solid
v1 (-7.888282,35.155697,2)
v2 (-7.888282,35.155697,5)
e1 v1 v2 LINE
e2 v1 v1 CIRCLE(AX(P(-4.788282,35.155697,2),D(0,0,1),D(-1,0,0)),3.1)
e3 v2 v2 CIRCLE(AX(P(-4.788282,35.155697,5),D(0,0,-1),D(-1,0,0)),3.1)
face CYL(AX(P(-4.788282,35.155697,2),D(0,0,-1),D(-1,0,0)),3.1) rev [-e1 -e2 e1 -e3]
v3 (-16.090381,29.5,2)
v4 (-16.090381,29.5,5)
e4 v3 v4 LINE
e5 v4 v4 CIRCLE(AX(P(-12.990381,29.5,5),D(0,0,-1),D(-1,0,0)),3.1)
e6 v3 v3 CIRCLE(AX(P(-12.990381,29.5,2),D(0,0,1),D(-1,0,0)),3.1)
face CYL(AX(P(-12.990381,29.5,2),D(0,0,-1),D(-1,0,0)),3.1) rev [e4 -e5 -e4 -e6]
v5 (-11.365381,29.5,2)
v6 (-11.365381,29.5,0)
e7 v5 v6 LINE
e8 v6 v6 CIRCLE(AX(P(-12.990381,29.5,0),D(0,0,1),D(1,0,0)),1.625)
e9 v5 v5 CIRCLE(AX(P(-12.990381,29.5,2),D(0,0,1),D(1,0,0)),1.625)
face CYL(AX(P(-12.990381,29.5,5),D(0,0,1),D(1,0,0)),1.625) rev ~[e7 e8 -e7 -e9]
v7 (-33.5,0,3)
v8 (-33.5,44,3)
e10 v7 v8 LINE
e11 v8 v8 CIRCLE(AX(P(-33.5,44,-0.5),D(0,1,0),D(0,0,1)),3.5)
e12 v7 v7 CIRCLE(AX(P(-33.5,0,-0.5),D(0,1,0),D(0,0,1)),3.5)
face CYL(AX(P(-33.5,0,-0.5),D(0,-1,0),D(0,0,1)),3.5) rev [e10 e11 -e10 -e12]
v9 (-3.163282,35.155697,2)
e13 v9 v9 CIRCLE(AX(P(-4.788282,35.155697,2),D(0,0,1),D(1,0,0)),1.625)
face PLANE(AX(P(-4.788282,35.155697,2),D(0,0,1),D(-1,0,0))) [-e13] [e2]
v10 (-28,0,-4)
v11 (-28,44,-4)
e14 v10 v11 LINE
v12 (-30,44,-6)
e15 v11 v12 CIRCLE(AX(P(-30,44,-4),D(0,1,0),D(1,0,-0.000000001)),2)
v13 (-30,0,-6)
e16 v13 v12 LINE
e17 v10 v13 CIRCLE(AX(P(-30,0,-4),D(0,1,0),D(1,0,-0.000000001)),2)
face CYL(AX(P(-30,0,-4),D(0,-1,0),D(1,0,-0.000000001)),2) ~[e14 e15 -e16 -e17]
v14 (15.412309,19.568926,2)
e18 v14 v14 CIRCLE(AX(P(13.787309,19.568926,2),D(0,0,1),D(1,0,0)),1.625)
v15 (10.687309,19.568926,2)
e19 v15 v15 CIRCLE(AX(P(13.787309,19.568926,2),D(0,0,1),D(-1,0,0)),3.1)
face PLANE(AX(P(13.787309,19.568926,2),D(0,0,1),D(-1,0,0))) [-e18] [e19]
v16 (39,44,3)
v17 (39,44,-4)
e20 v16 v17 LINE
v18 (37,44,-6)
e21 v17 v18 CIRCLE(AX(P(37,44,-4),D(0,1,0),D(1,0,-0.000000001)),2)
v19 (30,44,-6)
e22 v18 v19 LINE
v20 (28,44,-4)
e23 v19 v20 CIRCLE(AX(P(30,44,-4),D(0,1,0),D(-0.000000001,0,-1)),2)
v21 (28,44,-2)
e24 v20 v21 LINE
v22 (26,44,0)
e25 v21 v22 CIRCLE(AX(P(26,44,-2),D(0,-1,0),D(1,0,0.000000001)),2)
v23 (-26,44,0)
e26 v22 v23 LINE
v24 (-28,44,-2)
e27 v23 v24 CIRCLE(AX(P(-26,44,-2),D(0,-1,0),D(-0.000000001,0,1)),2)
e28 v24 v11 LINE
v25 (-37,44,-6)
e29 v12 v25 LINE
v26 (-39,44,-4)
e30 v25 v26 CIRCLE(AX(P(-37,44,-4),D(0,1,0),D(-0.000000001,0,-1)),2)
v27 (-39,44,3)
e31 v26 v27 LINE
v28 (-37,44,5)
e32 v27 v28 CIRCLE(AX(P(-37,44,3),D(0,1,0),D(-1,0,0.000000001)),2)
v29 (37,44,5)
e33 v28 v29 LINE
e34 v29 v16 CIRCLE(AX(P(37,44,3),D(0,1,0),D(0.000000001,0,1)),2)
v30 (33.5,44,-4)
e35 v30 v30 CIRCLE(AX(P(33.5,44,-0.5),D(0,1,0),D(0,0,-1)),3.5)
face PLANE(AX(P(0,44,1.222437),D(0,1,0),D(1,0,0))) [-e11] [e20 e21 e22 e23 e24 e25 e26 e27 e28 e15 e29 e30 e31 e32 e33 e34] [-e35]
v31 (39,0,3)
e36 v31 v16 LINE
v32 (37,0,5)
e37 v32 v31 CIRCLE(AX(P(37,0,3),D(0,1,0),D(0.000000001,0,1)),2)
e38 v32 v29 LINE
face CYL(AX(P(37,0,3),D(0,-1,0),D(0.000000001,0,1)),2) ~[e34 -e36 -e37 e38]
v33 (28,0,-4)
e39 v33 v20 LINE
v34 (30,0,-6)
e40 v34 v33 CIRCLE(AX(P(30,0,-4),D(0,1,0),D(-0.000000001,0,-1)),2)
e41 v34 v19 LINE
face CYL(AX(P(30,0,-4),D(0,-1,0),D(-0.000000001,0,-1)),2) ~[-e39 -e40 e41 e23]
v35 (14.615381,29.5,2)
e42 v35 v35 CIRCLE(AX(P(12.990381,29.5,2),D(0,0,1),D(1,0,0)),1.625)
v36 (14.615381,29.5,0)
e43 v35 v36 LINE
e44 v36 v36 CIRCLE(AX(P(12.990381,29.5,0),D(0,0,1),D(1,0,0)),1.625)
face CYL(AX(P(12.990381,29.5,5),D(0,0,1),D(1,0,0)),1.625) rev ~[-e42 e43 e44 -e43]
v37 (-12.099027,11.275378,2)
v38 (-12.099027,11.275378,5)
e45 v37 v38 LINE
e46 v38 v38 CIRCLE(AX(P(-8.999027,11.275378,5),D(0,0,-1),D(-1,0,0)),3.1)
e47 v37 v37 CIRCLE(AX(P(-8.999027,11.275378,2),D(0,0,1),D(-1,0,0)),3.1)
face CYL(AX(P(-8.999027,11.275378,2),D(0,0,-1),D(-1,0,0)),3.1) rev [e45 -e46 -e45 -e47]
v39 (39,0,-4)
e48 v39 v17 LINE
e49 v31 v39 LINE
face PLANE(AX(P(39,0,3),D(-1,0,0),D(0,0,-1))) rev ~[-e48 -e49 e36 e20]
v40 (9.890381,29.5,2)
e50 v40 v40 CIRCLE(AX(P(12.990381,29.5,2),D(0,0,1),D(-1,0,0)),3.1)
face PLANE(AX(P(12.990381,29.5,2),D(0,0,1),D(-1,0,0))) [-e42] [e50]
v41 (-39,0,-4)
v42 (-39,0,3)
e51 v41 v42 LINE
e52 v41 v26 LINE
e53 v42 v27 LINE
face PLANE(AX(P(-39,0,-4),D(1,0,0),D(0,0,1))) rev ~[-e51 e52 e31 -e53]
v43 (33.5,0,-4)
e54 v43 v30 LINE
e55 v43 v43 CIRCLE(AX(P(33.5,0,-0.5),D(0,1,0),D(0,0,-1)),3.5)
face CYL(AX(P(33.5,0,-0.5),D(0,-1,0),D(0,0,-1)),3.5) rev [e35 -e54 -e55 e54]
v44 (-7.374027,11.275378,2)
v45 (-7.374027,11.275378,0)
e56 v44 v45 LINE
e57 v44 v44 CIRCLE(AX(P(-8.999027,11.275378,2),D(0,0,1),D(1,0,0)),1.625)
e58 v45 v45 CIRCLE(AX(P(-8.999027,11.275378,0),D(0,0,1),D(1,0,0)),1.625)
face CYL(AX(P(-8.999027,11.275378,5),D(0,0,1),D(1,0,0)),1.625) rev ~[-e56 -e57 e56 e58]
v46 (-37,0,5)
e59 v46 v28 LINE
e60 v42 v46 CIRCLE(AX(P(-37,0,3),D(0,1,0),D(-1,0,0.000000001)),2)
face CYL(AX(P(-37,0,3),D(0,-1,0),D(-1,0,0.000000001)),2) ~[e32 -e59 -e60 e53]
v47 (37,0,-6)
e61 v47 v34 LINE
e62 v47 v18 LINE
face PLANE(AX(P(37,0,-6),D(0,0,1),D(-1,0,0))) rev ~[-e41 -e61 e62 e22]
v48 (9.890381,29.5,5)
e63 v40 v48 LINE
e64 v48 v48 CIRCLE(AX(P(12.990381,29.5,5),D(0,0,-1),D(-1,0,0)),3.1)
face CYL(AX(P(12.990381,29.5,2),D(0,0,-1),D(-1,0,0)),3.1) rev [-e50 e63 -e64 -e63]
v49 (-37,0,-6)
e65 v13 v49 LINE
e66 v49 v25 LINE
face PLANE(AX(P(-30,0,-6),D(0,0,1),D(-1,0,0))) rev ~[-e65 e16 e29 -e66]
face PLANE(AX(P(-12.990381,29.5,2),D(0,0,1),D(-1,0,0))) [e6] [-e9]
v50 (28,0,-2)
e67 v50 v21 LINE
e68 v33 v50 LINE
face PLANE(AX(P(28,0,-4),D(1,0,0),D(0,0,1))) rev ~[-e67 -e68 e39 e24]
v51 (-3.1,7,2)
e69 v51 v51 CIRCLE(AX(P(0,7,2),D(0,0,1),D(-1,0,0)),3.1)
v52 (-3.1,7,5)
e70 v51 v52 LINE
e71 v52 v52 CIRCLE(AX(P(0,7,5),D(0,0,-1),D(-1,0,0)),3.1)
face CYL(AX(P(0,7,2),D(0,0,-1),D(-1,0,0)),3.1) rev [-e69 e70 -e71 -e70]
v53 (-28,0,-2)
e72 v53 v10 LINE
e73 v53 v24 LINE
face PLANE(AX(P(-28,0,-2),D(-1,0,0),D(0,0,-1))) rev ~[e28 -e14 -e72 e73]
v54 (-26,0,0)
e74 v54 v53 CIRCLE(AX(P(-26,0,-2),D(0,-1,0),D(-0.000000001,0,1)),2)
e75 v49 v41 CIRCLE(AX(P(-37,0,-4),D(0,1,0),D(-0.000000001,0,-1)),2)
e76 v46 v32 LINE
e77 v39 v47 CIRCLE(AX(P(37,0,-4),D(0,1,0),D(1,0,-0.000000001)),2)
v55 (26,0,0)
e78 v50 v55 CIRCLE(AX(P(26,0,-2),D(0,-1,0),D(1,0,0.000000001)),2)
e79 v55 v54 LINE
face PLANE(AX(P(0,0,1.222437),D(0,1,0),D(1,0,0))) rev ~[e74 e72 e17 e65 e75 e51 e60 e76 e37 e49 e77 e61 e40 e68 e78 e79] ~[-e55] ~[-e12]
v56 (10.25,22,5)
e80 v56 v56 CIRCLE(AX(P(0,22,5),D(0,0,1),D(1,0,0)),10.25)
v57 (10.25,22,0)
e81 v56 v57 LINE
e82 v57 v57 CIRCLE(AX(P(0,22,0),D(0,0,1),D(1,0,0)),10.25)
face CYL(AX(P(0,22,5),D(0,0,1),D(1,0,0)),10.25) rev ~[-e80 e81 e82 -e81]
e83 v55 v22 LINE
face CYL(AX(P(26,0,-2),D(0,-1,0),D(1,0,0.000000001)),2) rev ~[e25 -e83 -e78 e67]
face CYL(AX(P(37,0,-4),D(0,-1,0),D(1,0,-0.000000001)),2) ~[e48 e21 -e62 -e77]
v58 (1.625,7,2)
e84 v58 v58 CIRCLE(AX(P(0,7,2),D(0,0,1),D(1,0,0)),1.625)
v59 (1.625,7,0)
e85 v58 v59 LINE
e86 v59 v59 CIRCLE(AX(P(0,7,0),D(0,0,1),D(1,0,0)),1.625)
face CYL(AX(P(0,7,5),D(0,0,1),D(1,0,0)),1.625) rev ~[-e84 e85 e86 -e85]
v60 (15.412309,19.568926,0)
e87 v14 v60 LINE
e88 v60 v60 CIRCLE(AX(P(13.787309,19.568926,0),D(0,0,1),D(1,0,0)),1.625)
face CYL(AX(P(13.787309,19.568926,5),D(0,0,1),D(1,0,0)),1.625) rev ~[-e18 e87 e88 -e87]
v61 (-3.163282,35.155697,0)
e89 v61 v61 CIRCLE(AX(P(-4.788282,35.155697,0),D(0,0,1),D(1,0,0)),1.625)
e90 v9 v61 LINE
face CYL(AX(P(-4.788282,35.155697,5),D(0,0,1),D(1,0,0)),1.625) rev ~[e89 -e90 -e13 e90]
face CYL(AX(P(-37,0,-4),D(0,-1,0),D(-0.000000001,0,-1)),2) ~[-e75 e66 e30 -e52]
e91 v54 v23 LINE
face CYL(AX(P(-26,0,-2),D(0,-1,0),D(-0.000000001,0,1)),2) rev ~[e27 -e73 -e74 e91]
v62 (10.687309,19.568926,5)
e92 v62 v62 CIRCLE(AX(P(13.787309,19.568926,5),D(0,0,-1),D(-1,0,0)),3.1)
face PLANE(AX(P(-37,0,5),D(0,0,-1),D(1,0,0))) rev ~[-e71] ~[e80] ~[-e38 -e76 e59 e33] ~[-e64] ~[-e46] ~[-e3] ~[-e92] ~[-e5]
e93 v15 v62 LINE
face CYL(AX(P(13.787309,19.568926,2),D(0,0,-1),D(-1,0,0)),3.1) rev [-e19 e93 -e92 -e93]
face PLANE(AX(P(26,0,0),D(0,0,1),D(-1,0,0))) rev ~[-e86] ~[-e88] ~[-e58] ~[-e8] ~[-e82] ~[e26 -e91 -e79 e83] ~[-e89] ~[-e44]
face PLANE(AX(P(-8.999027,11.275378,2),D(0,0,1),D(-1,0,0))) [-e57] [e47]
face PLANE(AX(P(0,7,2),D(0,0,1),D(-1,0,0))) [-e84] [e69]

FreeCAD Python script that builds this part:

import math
import FreeCAD as App
import Part
import Sketcher

doc = App.newDocument("Part")
body = doc.addObject("PartDesign::Body", "Body")

# Sketch on XZ plane
sketch1 = body.newObject("Sketcher::SketchObject", "Sketch")
sketch1.AttachmentSupport = (doc.getObject("XZ_Plane"), [""])
sketch1.MapMode = "FlatFace"
sketch1.addGeometry(Part.LineSegment(App.Vector(26, 0, 0), App.Vector(-26, 0, 0)), False)
sketch1.addGeometry(Part.ArcOfCircle(Part.Circle(App.Vector(-26, -2, 0), App.Vector(0, 0, 1), 2), math.radians(90), math.radians(180)), False)
sketch1.addGeometry(Part.LineSegment(App.Vector(-28, -2, 0), App.Vector(-28, -4, 0)), False)
sketch1.addGeometry(Part.ArcOfCircle(Part.Circle(App.Vector(-30, -4, 0), App.Vector(0, 0, 1), 2), math.radians(-90), math.radians(0)), False)
sketch1.addGeometry(Part.LineSegment(App.Vector(-30, -6, 0), App.Vector(-37, -6, 0)), False)
sketch1.addGeometry(Part.ArcOfCircle(Part.Circle(App.Vector(-37, -4, 0), App.Vector(0, 0, 1), 2), math.radians(-180), math.radians(-90)), False)
sketch1.addGeometry(Part.LineSegment(App.Vector(-39, -4, 0), App.Vector(-39, 3, 0)), False)
sketch1.addGeometry(Part.ArcOfCircle(Part.Circle(App.Vector(-37, 3, 0), App.Vector(0, 0, 1), 2), math.radians(90), math.radians(180)), False)
sketch1.addGeometry(Part.LineSegment(App.Vector(-37, 5, 0), App.Vector(37, 5, 0)), False)
sketch1.addGeometry(Part.ArcOfCircle(Part.Circle(App.Vector(37, 3, 0), App.Vector(0, 0, 1), 2), math.radians(0), math.radians(90)), False)
sketch1.addGeometry(Part.LineSegment(App.Vector(39, 3, 0), App.Vector(39, -4, 0)), False)
sketch1.addGeometry(Part.ArcOfCircle(Part.Circle(App.Vector(37, -4, 0), App.Vector(0, 0, 1), 2), math.radians(-90), math.radians(0)), False)
sketch1.addGeometry(Part.LineSegment(App.Vector(37, -6, 0), App.Vector(30, -6, 0)), False)
sketch1.addGeometry(Part.ArcOfCircle(Part.Circle(App.Vector(30, -4, 0), App.Vector(0, 0, 1), 2), math.radians(-180), math.radians(-90)), False)
sketch1.addGeometry(Part.LineSegment(App.Vector(28, -4, 0), App.Vector(28, -2, 0)), False)
sketch1.addGeometry(Part.ArcOfCircle(Part.Circle(App.Vector(26, -2, 0), App.Vector(0, 0, 1), 2), math.radians(0), math.radians(90)), False)
sketch1.addGeometry(Part.Circle(App.Vector(-33.5, -0.5, 0), App.Vector(0, 0, 1), 3.5), False)
sketch1.addGeometry(Part.Circle(App.Vector(33.5, -0.5, 0), App.Vector(0, 0, 1), 3.5), False)
sketch1.addConstraint(Sketcher.Constraint("Tangent", 0, 2, 1, 1))
sketch1.addConstraint(Sketcher.Constraint("Tangent", 1, 2, 2, 1))
sketch1.addConstraint(Sketcher.Constraint("Tangent", 2, 2, 3, 2))
sketch1.addConstraint(Sketcher.Constraint("Tangent", 3, 1, 4, 1))
sketch1.addConstraint(Sketcher.Constraint("Tangent", 4, 2, 5, 2))
sketch1.addConstraint(Sketcher.Constraint("Tangent", 5, 1, 6, 1))
sketch1.addConstraint(Sketcher.Constraint("Tangent", 6, 2, 7, 2))
sketch1.addConstraint(Sketcher.Constraint("Tangent", 7, 1, 8, 1))
sketch1.addConstraint(Sketcher.Constraint("Tangent", 8, 2, 9, 2))
sketch1.addConstraint(Sketcher.Constraint("Tangent", 9, 1, 10, 1))
sketch1.addConstraint(Sketcher.Constraint("Tangent", 10, 2, 11, 2))
sketch1.addConstraint(Sketcher.Constraint("Tangent", 11, 1, 12, 1))
sketch1.addConstraint(Sketcher.Constraint("Tangent", 12, 2, 13, 2))
sketch1.addConstraint(Sketcher.Constraint("Tangent", 13, 1, 14, 1))
sketch1.addConstraint(Sketcher.Constraint("Tangent", 14, 2, 15, 1))
sketch1.addConstraint(Sketcher.Constraint("Tangent", 15, 2, 0, 1))
sketch1.addConstraint(Sketcher.Constraint("Horizontal", 0))
sketch1.addConstraint(Sketcher.Constraint("Vertical", 2))
sketch1.addConstraint(Sketcher.Constraint("Horizontal", 4))
sketch1.addConstraint(Sketcher.Constraint("Vertical", 6))
sketch1.addConstraint(Sketcher.Constraint("Horizontal", 8))
sketch1.addConstraint(Sketcher.Constraint("Vertical", 10))
sketch1.addConstraint(Sketcher.Constraint("Horizontal", 12))
sketch1.addConstraint(Sketcher.Constraint("Vertical", 14))
sketch1.addConstraint(Sketcher.Constraint("Equal", 1, 3))
sketch1.addConstraint(Sketcher.Constraint("Equal", 3, 5))
sketch1.addConstraint(Sketcher.Constraint("Equal", 5, 7))
sketch1.addConstraint(Sketcher.Constraint("Equal", 7, 9))
sketch1.addConstraint(Sketcher.Constraint("Equal", 9, 11))
sketch1.addConstraint(Sketcher.Constraint("Equal", 11, 13))
sketch1.addConstraint(Sketcher.Constraint("Equal", 13, 15))
sketch1.addConstraint(Sketcher.Constraint("Equal", 16, 17))
sketch1.addConstraint(Sketcher.Constraint("Symmetric", 0, 2, 15, 2, -1, 1))
sketch1.addConstraint(Sketcher.Constraint("Symmetric", 5, 3, 11, 3, -2))
sketch1.addConstraint(Sketcher.Constraint("Symmetric", 16, 3, 17, 3, -2))
sketch1.addConstraint(Sketcher.Constraint("Equal", 12, 6))
sketch1.addConstraint(Sketcher.Constraint("Diameter", 16, 7.0))
sketch1.addConstraint(Sketcher.Constraint("Radius", 1, 2.0))
sketch1.addConstraint(Sketcher.Constraint("DistanceX", 0, 2, 0, 1, 52.0))
sketch1.addConstraint(Sketcher.Constraint("DistanceX", 4, 2, 4, 1, 7.0))
sketch1.addConstraint(Sketcher.Constraint("DistanceY", 2, 2, 2, 1, 2.0))
sketch1.addConstraint(Sketcher.Constraint("DistanceX", 16, 3, -1, 1, 33.5))
sketch1.addConstraint(Sketcher.Constraint("DistanceY", 16, 3, -1, 1, 0.5))
pad1 = body.newObject("PartDesign::Pad", "Pad")
pad1.Profile = sketch1
pad1.Length = 44
pad1.Reversed = True

# Sketch on XY plane
sketch2 = body.newObject("Sketcher::SketchObject", "Sketch001")
sketch2.AttachmentSupport = (doc.getObject("XY_Plane"), [""])
sketch2.MapMode = "FlatFace"
sketch2.AttachmentOffset = App.Placement(App.Vector(0, 0, 5), App.Rotation())
sketch2.addGeometry(Part.Circle(App.Vector(0, 22, 0), App.Vector(0, 0, 1), 10.2), False)
sketch2.addGeometry(Part.Circle(App.Vector(0, 7, 0), App.Vector(0, 0, 1), 1.6), False)
sketch2.addGeometry(Part.Circle(App.Vector(-9, 11.3, 0), App.Vector(0, 0, 1), 1.6), False)
sketch2.addGeometry(Part.Circle(App.Vector(13.8, 19.6, 0), App.Vector(0, 0, 1), 1.6), False)
sketch2.addGeometry(Part.Circle(App.Vector(13, 29.5, 0), App.Vector(0, 0, 1), 1.6), False)
sketch2.addGeometry(Part.Circle(App.Vector(-4.8, 35.2, 0), App.Vector(0, 0, 1), 1.6), False)
sketch2.addGeometry(Part.Circle(App.Vector(-13, 29.5, 0), App.Vector(0, 0, 1), 1.6), False)
sketch2.addConstraint(Sketcher.Constraint("Equal", 1, 2))
sketch2.addConstraint(Sketcher.Constraint("Equal", 2, 3))
sketch2.addConstraint(Sketcher.Constraint("Equal", 3, 4))
sketch2.addConstraint(Sketcher.Constraint("Equal", 4, 5))
sketch2.addConstraint(Sketcher.Constraint("Equal", 5, 6))
sketch2.addConstraint(Sketcher.Constraint("Symmetric", 4, 3, 6, 3, -2))
sketch2.addConstraint(Sketcher.Constraint("PointOnObject", 0, 3, -2))
sketch2.addConstraint(Sketcher.Constraint("PointOnObject", 1, 3, -2))
sketch2.addConstraint(Sketcher.Constraint("Diameter", 0, 20.5))
sketch2.addConstraint(Sketcher.Constraint("Diameter", 1, 3.25))
sketch2.addConstraint(Sketcher.Constraint("DistanceY", -1, 1, 0, 3, 22.0))
sketch2.addConstraint(Sketcher.Constraint("DistanceY", -1, 1, 1, 3, 7.0))
sketch2.addConstraint(Sketcher.Constraint("DistanceY", -1, 1, 4, 3, 29.5))
sketch2.addConstraint(Sketcher.Constraint("DistanceX", 6, 3, 5, 3, 8.202099))
sketch2.addConstraint(Sketcher.Constraint("DistanceX", -1, 1, 3, 3, 13.787309))
sketch2.addConstraint(Sketcher.Constraint("DistanceX", -1, 1, 4, 3, 12.990381))
sketch2.addConstraint(Sketcher.Constraint("DistanceY", 3, 3, 5, 3, 15.586771))
sketch2.addConstraint(Sketcher.Constraint("DistanceY", 2, 3, 5, 3, 23.880319))
sketch2.addConstraint(Sketcher.Constraint("DistanceX", 2, 3, -1, 1, 8.999027))
sketch2.addConstraint(Sketcher.Constraint("DistanceY", -1, 1, 2, 3, 11.275378))
pocket1 = body.newObject("PartDesign::Pocket", "Pocket")
pocket1.Profile = sketch2
pocket1.Length = 60

# Sketch on XY plane
sketch3 = body.newObject("Sketcher::SketchObject", "Sketch002")
sketch3.AttachmentSupport = (doc.getObject("XY_Plane"), [""])
sketch3.MapMode = "FlatFace"
sketch3.AttachmentOffset = App.Placement(App.Vector(0, 0, 5), App.Rotation())
sketch3.addGeometry(Part.Circle(App.Vector(0, 7, 0), App.Vector(0, 0, 1), 3.1), False)
sketch3.addGeometry(Part.Circle(App.Vector(-9, 11.3, 0), App.Vector(0, 0, 1), 3.1), False)
sketch3.addGeometry(Part.Circle(App.Vector(-4.8, 35.2, 0), App.Vector(0, 0, 1), 3.1), False)
sketch3.addGeometry(Part.Circle(App.Vector(-13, 29.5, 0), App.Vector(0, 0, 1), 3.1), False)
sketch3.addGeometry(Part.Circle(App.Vector(13.8, 19.6, 0), App.Vector(0, 0, 1), 3.1), False)
sketch3.addGeometry(Part.Circle(App.Vector(13, 29.5, 0), App.Vector(0, 0, 1), 3.1), False)
sketch3.addConstraint(Sketcher.Constraint("Equal", 0, 1))
sketch3.addConstraint(Sketcher.Constraint("Equal", 1, 2))
sketch3.addConstraint(Sketcher.Constraint("Equal", 2, 3))
sketch3.addConstraint(Sketcher.Constraint("Equal", 3, 4))
sketch3.addConstraint(Sketcher.Constraint("Equal", 4, 5))
sketch3.addConstraint(Sketcher.Constraint("Symmetric", 3, 3, 5, 3, -2))
sketch3.addConstraint(Sketcher.Constraint("PointOnObject", 0, 3, -2))
sketch3.addConstraint(Sketcher.Constraint("Diameter", 0, 6.2))
sketch3.addConstraint(Sketcher.Constraint("DistanceY", -1, 1, 0, 3, 7.0))
sketch3.addConstraint(Sketcher.Constraint("DistanceY", -1, 1, 3, 3, 29.5))
sketch3.addConstraint(Sketcher.Constraint("DistanceX", 3, 3, 2, 3, 8.202099))
sketch3.addConstraint(Sketcher.Constraint("DistanceX", 3, 3, -1, 1, 12.990381))
sketch3.addConstraint(Sketcher.Constraint("DistanceX", -1, 1, 4, 3, 13.787309))
sketch3.addConstraint(Sketcher.Constraint("DistanceY", 1, 3, 2, 3, 23.880319))
sketch3.addConstraint(Sketcher.Constraint("DistanceY", 4, 3, 2, 3, 15.586771))
sketch3.addConstraint(Sketcher.Constraint("DistanceX", 1, 3, -1, 1, 8.999027))
sketch3.addConstraint(Sketcher.Constraint("DistanceY", -1, 1, 1, 3, 11.275378))
pocket2 = body.newObject("PartDesign::Pocket", "Pocket001")
pocket2.Profile = sketch3
pocket2.Type = "TwoLengths"
pocket2.Length = 60.816386
pocket2.Length2 = 3
pocket2.Reversed = True

doc.recompute()
